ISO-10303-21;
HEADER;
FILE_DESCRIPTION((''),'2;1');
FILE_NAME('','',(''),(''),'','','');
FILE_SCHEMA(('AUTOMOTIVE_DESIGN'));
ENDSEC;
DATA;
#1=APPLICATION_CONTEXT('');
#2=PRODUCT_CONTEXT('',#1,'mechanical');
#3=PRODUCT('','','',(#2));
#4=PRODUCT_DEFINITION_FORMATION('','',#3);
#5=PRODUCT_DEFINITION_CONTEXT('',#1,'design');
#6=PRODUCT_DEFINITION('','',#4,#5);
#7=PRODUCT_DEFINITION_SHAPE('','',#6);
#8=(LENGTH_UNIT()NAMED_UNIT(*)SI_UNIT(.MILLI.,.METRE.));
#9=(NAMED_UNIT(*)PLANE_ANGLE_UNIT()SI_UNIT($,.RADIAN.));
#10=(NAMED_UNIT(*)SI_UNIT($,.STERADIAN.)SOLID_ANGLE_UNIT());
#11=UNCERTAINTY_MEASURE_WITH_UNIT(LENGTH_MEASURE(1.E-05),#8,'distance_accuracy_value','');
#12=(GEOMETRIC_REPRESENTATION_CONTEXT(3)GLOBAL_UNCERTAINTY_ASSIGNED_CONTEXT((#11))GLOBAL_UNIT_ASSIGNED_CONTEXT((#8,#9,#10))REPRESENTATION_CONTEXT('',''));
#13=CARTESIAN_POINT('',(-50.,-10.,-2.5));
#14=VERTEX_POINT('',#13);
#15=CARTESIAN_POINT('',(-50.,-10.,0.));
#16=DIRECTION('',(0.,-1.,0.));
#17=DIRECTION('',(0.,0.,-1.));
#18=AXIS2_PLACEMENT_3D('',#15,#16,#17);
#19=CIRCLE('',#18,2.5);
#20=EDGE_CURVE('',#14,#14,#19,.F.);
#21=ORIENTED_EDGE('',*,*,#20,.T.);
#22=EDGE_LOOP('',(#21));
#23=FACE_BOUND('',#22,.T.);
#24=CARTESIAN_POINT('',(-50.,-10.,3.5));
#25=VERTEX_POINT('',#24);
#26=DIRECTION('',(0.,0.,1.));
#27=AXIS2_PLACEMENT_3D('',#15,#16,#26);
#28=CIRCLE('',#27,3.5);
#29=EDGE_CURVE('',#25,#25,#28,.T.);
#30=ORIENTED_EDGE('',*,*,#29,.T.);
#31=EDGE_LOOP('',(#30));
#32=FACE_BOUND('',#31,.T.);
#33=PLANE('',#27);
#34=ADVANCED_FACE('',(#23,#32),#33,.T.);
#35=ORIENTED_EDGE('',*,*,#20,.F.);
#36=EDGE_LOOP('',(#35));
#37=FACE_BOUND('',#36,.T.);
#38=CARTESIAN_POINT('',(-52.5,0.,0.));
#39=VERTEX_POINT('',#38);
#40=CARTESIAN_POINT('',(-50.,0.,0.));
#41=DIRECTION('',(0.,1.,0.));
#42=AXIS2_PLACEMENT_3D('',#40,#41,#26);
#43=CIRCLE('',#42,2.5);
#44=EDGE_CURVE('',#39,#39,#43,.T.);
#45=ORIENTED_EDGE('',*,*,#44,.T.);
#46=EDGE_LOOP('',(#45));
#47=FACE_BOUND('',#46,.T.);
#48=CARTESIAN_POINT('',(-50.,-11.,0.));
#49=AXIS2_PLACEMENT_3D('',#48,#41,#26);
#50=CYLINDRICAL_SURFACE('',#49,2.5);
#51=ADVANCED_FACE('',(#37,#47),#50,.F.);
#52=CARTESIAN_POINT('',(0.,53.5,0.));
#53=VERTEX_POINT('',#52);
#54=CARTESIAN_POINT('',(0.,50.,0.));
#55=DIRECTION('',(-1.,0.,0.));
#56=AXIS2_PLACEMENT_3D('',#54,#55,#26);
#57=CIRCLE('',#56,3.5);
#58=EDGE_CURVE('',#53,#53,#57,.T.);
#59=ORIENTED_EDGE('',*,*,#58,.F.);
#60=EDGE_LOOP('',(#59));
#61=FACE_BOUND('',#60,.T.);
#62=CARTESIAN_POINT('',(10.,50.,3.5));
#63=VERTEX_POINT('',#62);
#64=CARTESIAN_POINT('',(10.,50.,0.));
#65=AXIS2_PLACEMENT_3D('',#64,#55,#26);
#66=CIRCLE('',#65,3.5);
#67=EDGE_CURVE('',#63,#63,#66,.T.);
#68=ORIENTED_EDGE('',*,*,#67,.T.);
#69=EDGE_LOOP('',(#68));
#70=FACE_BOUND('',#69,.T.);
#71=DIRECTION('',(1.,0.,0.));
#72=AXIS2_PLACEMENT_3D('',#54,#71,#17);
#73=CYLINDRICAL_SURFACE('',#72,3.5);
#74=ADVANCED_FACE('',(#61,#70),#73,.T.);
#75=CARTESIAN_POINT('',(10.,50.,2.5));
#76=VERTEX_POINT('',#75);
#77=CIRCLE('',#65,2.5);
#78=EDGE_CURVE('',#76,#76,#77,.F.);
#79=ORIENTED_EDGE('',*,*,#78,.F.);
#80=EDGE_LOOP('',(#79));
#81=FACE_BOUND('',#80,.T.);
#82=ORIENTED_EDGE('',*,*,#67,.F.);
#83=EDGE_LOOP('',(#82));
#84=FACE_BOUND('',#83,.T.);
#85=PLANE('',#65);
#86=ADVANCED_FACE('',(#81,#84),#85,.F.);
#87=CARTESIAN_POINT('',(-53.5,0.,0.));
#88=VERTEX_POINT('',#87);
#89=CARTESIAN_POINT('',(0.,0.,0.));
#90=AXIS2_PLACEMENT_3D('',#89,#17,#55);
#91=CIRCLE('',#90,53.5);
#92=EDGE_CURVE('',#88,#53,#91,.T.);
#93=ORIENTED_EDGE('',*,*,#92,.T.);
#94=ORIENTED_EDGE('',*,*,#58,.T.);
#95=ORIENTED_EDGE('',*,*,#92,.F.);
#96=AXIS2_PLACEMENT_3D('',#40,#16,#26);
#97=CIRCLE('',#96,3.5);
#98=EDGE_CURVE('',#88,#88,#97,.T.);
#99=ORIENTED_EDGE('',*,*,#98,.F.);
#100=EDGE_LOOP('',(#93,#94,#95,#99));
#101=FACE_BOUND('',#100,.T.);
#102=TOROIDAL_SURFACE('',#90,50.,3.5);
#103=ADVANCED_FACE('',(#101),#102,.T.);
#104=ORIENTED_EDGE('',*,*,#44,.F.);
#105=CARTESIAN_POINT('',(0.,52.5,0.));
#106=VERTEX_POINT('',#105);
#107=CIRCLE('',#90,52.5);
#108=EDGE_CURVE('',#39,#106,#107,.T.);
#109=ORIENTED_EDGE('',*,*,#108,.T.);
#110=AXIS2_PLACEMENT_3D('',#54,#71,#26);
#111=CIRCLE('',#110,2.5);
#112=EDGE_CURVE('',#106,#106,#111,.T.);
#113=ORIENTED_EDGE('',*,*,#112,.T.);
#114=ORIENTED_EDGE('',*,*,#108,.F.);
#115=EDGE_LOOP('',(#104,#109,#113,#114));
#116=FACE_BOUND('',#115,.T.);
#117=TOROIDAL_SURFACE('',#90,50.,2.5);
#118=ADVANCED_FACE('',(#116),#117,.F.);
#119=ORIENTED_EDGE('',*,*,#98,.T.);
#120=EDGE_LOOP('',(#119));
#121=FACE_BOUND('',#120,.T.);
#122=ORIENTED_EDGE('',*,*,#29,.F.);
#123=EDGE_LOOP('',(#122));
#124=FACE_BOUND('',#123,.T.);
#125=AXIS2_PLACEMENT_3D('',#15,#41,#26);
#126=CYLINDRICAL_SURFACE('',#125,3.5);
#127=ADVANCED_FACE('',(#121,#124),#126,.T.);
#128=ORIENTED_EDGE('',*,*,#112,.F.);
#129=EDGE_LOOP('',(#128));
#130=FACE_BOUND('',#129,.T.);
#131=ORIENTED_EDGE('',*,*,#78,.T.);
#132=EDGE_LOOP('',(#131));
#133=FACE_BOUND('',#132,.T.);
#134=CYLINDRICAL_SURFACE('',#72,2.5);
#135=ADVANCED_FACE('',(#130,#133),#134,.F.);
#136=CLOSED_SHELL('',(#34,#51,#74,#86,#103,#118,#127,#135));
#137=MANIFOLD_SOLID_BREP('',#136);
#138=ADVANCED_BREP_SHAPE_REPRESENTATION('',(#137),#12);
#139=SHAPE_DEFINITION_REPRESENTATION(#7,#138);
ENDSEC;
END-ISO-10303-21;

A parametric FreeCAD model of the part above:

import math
import FreeCAD as App
import Part
import Sketcher
from FreeCAD import Vector

doc = App.newDocument("Part")
body = doc.addObject("PartDesign::Body", "Body")

sketch1 = body.newObject("Sketcher::SketchObject", "Sketch")
sketch1.AttachmentSupport = (doc.getObject("YZ_Plane"), [""])
sketch1.MapMode = "FlatFace"
sketch1.AttachmentOffset = App.Placement(Vector(0, 0, 10), App.Rotation())
sketch1.addGeometry(Part.Circle(Vector(50, 0, 0), Vector(0, 0, 1), 3.5), False)
sketch1.addConstraint([
    Sketcher.Constraint("PointOnObject", 0, 3, -1),
    Sketcher.Constraint("Diameter", 0, 7.0),
    Sketcher.Constraint("DistanceX", -1, 1, 0, 3, 50.0),
])

sketch2 = body.newObject("Sketcher::SketchObject", "Sketch001")
sketch2.AttachmentSupport = (doc.getObject("XY_Plane"), [""])
sketch2.MapMode = "FlatFace"
sketch2.addGeometry([
    Part.LineSegment(Vector(10, 50, 0), Vector(0, 50, 0)),
    Part.ArcOfCircle(Part.Circle(Vector(0, 0, 0), Vector(0, 0, 1), 50), math.radians(90), math.radians(180)),
    Part.LineSegment(Vector(-50, 0, 0), Vector(-50, -10, 0)),
], False)
sketch2.addConstraint([
    Sketcher.Constraint("Tangent", 0, 2, 1, 1),
    Sketcher.Constraint("Tangent", 1, 2, 2, 1),
    Sketcher.Constraint("Horizontal", 0),
    Sketcher.Constraint("Vertical", 2),
    Sketcher.Constraint("Coincident", 1, 3, -1, 1),
    Sketcher.Constraint("Equal", 0, 2),
    Sketcher.Constraint("Radius", 1, 50.0),
    Sketcher.Constraint("DistanceX", 0, 2, 0, 1, 10.0),
])
doc.recompute()

additivepipe = body.newObject("PartDesign::AdditivePipe", "AdditivePipe")
additivepipe.Profile = sketch1
additivepipe.Spine = (sketch2, ["Edge1", "Edge2", "Edge3"])

sketch3 = body.newObject("Sketcher::SketchObject", "Sketch002")
sketch3.AttachmentSupport = (doc.getObject("YZ_Plane"), [""])
sketch3.MapMode = "FlatFace"
sketch3.AttachmentOffset = App.Placement(Vector(0, 0, 10), App.Rotation())
sketch3.addGeometry(Part.Circle(Vector(50, 0, 0), Vector(0, 0, 1), 2.5), False)
sketch3.addConstraint([
    Sketcher.Constraint("PointOnObject", 0, 3, -1),
    Sketcher.Constraint("Diameter", 0, 5.0),
    Sketcher.Constraint("DistanceX", -1, 1, 0, 3, 50.0),
])

sketch4 = body.newObject("Sketcher::SketchObject", "Sketch003")
sketch4.AttachmentSupport = (doc.getObject("XY_Plane"), [""])
sketch4.MapMode = "FlatFace"
sketch4.addGeometry([
    Part.LineSegment(Vector(10, 50, 0), Vector(0, 50, 0)),
    Part.ArcOfCircle(Part.Circle(Vector(0, 0, 0), Vector(0, 0, 1), 50), math.radians(90), math.radians(180)),
    Part.LineSegment(Vector(-50, 0, 0), Vector(-50, -10, 0)),
], False)
sketch4.addConstraint([
    Sketcher.Constraint("Tangent", 0, 2, 1, 1),
    Sketcher.Constraint("Tangent", 1, 2, 2, 1),
    Sketcher.Constraint("Horizontal", 0),
    Sketcher.Constraint("Vertical", 2),
    Sketcher.Constraint("Coincident", 1, 3, -1, 1),
    Sketcher.Constraint("Equal", 0, 2),
    Sketcher.Constraint("Radius", 1, 50.0),
    Sketcher.Constraint("DistanceX", 0, 2, 0, 1, 10.0),
])
doc.recompute()

subtractivepipe = body.newObject("PartDesign::SubtractivePipe", "SubtractivePipe")
subtractivepipe.Profile = sketch3
subtractivepipe.Spine = (sketch4, ["Edge1", "Edge2", "Edge3"])

doc.recompute()
